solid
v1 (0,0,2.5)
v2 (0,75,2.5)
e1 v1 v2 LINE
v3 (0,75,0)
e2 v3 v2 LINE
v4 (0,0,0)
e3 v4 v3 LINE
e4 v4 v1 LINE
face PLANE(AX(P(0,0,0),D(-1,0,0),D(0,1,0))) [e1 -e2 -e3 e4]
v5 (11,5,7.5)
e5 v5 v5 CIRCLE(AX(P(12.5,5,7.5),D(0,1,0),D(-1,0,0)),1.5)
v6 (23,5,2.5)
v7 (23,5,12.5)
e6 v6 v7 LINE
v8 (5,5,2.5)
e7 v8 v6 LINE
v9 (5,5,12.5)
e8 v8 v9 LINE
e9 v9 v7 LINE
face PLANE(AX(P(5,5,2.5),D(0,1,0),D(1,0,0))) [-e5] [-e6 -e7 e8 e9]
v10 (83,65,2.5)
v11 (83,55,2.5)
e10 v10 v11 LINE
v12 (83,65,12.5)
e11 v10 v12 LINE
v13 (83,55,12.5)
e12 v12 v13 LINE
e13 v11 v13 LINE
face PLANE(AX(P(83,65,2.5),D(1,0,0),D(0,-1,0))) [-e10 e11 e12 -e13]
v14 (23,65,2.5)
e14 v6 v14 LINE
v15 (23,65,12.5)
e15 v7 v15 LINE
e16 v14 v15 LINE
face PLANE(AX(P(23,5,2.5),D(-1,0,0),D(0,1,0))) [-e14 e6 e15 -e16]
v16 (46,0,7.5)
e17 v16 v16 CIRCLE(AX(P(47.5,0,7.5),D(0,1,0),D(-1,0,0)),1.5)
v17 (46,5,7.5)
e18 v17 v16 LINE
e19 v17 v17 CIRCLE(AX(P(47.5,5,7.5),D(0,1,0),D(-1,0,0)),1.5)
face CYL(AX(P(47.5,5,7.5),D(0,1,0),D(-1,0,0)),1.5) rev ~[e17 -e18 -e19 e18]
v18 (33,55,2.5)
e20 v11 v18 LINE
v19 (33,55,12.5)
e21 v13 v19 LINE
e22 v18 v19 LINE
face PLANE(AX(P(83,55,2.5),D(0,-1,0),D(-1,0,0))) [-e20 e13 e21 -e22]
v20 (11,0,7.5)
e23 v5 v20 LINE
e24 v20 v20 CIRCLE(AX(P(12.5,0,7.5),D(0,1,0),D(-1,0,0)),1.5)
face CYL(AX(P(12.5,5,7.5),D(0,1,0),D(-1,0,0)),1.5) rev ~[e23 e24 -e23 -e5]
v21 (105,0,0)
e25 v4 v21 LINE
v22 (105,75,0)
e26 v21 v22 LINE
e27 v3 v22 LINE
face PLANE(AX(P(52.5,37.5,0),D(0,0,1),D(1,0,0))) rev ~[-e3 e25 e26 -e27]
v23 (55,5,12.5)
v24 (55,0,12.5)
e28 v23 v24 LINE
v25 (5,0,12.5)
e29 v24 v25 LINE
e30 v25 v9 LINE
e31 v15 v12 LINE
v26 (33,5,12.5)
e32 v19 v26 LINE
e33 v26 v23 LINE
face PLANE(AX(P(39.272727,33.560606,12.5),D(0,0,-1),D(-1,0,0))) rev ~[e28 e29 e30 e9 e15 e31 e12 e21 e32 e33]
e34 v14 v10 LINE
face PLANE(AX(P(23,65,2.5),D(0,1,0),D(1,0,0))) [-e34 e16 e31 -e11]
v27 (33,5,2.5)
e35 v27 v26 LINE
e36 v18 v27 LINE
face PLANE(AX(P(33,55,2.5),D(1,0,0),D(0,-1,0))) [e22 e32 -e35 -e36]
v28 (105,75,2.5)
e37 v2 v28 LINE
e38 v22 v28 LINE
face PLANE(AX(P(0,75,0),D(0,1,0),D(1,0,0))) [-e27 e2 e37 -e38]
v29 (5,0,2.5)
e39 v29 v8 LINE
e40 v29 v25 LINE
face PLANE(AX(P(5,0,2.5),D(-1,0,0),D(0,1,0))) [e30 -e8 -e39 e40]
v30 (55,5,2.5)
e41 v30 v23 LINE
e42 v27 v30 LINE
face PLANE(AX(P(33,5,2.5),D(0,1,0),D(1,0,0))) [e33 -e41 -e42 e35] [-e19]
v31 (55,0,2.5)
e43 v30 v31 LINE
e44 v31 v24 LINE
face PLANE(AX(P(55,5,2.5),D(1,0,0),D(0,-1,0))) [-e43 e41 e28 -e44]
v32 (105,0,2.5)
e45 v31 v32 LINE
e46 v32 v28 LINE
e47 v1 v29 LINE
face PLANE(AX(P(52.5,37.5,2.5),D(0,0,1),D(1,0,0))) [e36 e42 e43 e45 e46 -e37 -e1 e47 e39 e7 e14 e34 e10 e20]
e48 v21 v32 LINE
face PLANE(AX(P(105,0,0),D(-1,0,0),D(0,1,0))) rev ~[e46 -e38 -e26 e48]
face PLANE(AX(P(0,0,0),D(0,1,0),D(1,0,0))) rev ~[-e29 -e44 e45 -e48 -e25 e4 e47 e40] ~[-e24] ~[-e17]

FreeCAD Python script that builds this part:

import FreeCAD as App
import Part
import Sketcher
from FreeCAD import Vector


def add_polygon(sketch, points):
    """Adds a closed chain of lines whose ends are joined by coincident constraints."""
    first, n = sketch.GeometryCount, len(points)
    for a, b in zip(points, points[1:] + points[:1]):
        sketch.addGeometry(Part.LineSegment(App.Vector(*a, 0), App.Vector(*b, 0)), False)
    for i in range(n):
        sketch.addConstraint(Sketcher.Constraint("Coincident", first + i, 2, first + (i + 1) % n, 1))

doc = App.newDocument("Part")
body = doc.addObject("PartDesign::Body", "Body")

sketch1 = doc.addObject("Sketcher::SketchObject", "Sketch")
body.addObject(sketch1)
sketch1.AttachmentSupport = (doc.XY_Plane, [""])
sketch1.MapMode = "FlatFace"
add_polygon(sketch1, [(0, 75), (0, 0), (105, 0), (105, 75)])
sketch1.addConstraint(Sketcher.Constraint("Vertical", 0))
sketch1.addConstraint(Sketcher.Constraint("Horizontal", 1))
sketch1.addConstraint(Sketcher.Constraint("Vertical", 2))
sketch1.addConstraint(Sketcher.Constraint("Horizontal", 3))
sketch1.addConstraint(Sketcher.Constraint("Coincident", 0, 2, -1, 1))
sketch1.addConstraint(Sketcher.Constraint("DistanceX", 1, 1, 1, 2, 105.0))
sketch1.addConstraint(Sketcher.Constraint("DistanceY", 0, 2, 0, 1, 75.0))
pad1 = doc.addObject("PartDesign::Pad", "Pad")
body.addObject(pad1)
pad1.Profile = sketch1
pad1.Length = 2.5

sketch2 = doc.addObject("Sketcher::SketchObject", "Sketch001")
body.addObject(sketch2)
sketch2.AttachmentSupport = (doc.XY_Plane, [""])
sketch2.MapMode = "FlatFace"
sketch2.AttachmentOffset = App.Placement(Vector(0, 0, 2.5), App.Rotation())
add_polygon(sketch2, [(5, 5), (5, 0), (55, 0), (55, 5), (33, 5), (33, 55), (83, 55), (83, 65), (23, 65), (23, 5)])
sketch2.addConstraint(Sketcher.Constraint("Vertical", 0))
sketch2.addConstraint(Sketcher.Constraint("Horizontal", 1))
sketch2.addConstraint(Sketcher.Constraint("Vertical", 2))
sketch2.addConstraint(Sketcher.Constraint("Horizontal", 3))
sketch2.addConstraint(Sketcher.Constraint("Vertical", 4))
sketch2.addConstraint(Sketcher.Constraint("Horizontal", 5))
sketch2.addConstraint(Sketcher.Constraint("Vertical", 6))
sketch2.addConstraint(Sketcher.Constraint("Horizontal", 7))
sketch2.addConstraint(Sketcher.Constraint("Vertical", 8))
sketch2.addConstraint(Sketcher.Constraint("Horizontal", 9))
sketch2.addConstraint(Sketcher.Constraint("PointOnObject", 0, 2, -1))
sketch2.addConstraint(Sketcher.Constraint("Horizontal", 3, 2, 8, 2))
sketch2.addConstraint(Sketcher.Constraint("Equal", 1, 5))
sketch2.addConstraint(Sketcher.Constraint("Equal", 5, 4))
sketch2.addConstraint(Sketcher.Constraint("Equal", 7, 8))
sketch2.addConstraint(Sketcher.Constraint("DistanceX", 1, 1, 1, 2, 50.0))
sketch2.addConstraint(Sketcher.Constraint("DistanceX", 3, 2, 3, 1, 22.0))
sketch2.addConstraint(Sketcher.Constraint("DistanceX", 7, 2, 7, 1, 60.0))
sketch2.addConstraint(Sketcher.Constraint("DistanceY", 0, 2, 0, 1, 5.0))
sketch2.addConstraint(Sketcher.Constraint("DistanceX", -1, 1, 0, 2, 5.0))
pad2 = doc.addObject("PartDesign::Pad", "Pad001")
body.addObject(pad2)
pad2.Profile = sketch2
pad2.Length = 10

sketch3 = doc.addObject("Sketcher::SketchObject", "Sketch002")
body.addObject(sketch3)
sketch3.AttachmentSupport = (doc.XZ_Plane, [""])
sketch3.MapMode = "FlatFace"
sketch3.AttachmentOffset = App.Placement(Vector(0, 0, -5), App.Rotation())
sketch3.addGeometry(Part.Circle(Vector(12.5, 7.5, 0), Vector(0, 0, 1), 1.5), False)
sketch3.addGeometry(Part.Circle(Vector(47.5, 7.5, 0), Vector(0, 0, 1), 1.5), False)
sketch3.addConstraint(Sketcher.Constraint("Equal", 0, 1))
sketch3.addConstraint(Sketcher.Constraint("Horizontal", 0, 3, 1, 3))
sketch3.addConstraint(Sketcher.Constraint("Diameter", 0, 3.0))
sketch3.addConstraint(Sketcher.Constraint("DistanceX", 0, 3, 1, 3, 35.0))
sketch3.addConstraint(Sketcher.Constraint("DistanceX", -1, 1, 0, 3, 12.5))
sketch3.addConstraint(Sketcher.Constraint("DistanceY", -1, 1, 0, 3, 7.5))
pocket1 = doc.addObject("PartDesign::Pocket", "Pocket")
body.addObject(pocket1)
pocket1.Profile = sketch3
pocket1.Type = "ThroughAll"
pocket1.Reversed = True

doc.recompute()
